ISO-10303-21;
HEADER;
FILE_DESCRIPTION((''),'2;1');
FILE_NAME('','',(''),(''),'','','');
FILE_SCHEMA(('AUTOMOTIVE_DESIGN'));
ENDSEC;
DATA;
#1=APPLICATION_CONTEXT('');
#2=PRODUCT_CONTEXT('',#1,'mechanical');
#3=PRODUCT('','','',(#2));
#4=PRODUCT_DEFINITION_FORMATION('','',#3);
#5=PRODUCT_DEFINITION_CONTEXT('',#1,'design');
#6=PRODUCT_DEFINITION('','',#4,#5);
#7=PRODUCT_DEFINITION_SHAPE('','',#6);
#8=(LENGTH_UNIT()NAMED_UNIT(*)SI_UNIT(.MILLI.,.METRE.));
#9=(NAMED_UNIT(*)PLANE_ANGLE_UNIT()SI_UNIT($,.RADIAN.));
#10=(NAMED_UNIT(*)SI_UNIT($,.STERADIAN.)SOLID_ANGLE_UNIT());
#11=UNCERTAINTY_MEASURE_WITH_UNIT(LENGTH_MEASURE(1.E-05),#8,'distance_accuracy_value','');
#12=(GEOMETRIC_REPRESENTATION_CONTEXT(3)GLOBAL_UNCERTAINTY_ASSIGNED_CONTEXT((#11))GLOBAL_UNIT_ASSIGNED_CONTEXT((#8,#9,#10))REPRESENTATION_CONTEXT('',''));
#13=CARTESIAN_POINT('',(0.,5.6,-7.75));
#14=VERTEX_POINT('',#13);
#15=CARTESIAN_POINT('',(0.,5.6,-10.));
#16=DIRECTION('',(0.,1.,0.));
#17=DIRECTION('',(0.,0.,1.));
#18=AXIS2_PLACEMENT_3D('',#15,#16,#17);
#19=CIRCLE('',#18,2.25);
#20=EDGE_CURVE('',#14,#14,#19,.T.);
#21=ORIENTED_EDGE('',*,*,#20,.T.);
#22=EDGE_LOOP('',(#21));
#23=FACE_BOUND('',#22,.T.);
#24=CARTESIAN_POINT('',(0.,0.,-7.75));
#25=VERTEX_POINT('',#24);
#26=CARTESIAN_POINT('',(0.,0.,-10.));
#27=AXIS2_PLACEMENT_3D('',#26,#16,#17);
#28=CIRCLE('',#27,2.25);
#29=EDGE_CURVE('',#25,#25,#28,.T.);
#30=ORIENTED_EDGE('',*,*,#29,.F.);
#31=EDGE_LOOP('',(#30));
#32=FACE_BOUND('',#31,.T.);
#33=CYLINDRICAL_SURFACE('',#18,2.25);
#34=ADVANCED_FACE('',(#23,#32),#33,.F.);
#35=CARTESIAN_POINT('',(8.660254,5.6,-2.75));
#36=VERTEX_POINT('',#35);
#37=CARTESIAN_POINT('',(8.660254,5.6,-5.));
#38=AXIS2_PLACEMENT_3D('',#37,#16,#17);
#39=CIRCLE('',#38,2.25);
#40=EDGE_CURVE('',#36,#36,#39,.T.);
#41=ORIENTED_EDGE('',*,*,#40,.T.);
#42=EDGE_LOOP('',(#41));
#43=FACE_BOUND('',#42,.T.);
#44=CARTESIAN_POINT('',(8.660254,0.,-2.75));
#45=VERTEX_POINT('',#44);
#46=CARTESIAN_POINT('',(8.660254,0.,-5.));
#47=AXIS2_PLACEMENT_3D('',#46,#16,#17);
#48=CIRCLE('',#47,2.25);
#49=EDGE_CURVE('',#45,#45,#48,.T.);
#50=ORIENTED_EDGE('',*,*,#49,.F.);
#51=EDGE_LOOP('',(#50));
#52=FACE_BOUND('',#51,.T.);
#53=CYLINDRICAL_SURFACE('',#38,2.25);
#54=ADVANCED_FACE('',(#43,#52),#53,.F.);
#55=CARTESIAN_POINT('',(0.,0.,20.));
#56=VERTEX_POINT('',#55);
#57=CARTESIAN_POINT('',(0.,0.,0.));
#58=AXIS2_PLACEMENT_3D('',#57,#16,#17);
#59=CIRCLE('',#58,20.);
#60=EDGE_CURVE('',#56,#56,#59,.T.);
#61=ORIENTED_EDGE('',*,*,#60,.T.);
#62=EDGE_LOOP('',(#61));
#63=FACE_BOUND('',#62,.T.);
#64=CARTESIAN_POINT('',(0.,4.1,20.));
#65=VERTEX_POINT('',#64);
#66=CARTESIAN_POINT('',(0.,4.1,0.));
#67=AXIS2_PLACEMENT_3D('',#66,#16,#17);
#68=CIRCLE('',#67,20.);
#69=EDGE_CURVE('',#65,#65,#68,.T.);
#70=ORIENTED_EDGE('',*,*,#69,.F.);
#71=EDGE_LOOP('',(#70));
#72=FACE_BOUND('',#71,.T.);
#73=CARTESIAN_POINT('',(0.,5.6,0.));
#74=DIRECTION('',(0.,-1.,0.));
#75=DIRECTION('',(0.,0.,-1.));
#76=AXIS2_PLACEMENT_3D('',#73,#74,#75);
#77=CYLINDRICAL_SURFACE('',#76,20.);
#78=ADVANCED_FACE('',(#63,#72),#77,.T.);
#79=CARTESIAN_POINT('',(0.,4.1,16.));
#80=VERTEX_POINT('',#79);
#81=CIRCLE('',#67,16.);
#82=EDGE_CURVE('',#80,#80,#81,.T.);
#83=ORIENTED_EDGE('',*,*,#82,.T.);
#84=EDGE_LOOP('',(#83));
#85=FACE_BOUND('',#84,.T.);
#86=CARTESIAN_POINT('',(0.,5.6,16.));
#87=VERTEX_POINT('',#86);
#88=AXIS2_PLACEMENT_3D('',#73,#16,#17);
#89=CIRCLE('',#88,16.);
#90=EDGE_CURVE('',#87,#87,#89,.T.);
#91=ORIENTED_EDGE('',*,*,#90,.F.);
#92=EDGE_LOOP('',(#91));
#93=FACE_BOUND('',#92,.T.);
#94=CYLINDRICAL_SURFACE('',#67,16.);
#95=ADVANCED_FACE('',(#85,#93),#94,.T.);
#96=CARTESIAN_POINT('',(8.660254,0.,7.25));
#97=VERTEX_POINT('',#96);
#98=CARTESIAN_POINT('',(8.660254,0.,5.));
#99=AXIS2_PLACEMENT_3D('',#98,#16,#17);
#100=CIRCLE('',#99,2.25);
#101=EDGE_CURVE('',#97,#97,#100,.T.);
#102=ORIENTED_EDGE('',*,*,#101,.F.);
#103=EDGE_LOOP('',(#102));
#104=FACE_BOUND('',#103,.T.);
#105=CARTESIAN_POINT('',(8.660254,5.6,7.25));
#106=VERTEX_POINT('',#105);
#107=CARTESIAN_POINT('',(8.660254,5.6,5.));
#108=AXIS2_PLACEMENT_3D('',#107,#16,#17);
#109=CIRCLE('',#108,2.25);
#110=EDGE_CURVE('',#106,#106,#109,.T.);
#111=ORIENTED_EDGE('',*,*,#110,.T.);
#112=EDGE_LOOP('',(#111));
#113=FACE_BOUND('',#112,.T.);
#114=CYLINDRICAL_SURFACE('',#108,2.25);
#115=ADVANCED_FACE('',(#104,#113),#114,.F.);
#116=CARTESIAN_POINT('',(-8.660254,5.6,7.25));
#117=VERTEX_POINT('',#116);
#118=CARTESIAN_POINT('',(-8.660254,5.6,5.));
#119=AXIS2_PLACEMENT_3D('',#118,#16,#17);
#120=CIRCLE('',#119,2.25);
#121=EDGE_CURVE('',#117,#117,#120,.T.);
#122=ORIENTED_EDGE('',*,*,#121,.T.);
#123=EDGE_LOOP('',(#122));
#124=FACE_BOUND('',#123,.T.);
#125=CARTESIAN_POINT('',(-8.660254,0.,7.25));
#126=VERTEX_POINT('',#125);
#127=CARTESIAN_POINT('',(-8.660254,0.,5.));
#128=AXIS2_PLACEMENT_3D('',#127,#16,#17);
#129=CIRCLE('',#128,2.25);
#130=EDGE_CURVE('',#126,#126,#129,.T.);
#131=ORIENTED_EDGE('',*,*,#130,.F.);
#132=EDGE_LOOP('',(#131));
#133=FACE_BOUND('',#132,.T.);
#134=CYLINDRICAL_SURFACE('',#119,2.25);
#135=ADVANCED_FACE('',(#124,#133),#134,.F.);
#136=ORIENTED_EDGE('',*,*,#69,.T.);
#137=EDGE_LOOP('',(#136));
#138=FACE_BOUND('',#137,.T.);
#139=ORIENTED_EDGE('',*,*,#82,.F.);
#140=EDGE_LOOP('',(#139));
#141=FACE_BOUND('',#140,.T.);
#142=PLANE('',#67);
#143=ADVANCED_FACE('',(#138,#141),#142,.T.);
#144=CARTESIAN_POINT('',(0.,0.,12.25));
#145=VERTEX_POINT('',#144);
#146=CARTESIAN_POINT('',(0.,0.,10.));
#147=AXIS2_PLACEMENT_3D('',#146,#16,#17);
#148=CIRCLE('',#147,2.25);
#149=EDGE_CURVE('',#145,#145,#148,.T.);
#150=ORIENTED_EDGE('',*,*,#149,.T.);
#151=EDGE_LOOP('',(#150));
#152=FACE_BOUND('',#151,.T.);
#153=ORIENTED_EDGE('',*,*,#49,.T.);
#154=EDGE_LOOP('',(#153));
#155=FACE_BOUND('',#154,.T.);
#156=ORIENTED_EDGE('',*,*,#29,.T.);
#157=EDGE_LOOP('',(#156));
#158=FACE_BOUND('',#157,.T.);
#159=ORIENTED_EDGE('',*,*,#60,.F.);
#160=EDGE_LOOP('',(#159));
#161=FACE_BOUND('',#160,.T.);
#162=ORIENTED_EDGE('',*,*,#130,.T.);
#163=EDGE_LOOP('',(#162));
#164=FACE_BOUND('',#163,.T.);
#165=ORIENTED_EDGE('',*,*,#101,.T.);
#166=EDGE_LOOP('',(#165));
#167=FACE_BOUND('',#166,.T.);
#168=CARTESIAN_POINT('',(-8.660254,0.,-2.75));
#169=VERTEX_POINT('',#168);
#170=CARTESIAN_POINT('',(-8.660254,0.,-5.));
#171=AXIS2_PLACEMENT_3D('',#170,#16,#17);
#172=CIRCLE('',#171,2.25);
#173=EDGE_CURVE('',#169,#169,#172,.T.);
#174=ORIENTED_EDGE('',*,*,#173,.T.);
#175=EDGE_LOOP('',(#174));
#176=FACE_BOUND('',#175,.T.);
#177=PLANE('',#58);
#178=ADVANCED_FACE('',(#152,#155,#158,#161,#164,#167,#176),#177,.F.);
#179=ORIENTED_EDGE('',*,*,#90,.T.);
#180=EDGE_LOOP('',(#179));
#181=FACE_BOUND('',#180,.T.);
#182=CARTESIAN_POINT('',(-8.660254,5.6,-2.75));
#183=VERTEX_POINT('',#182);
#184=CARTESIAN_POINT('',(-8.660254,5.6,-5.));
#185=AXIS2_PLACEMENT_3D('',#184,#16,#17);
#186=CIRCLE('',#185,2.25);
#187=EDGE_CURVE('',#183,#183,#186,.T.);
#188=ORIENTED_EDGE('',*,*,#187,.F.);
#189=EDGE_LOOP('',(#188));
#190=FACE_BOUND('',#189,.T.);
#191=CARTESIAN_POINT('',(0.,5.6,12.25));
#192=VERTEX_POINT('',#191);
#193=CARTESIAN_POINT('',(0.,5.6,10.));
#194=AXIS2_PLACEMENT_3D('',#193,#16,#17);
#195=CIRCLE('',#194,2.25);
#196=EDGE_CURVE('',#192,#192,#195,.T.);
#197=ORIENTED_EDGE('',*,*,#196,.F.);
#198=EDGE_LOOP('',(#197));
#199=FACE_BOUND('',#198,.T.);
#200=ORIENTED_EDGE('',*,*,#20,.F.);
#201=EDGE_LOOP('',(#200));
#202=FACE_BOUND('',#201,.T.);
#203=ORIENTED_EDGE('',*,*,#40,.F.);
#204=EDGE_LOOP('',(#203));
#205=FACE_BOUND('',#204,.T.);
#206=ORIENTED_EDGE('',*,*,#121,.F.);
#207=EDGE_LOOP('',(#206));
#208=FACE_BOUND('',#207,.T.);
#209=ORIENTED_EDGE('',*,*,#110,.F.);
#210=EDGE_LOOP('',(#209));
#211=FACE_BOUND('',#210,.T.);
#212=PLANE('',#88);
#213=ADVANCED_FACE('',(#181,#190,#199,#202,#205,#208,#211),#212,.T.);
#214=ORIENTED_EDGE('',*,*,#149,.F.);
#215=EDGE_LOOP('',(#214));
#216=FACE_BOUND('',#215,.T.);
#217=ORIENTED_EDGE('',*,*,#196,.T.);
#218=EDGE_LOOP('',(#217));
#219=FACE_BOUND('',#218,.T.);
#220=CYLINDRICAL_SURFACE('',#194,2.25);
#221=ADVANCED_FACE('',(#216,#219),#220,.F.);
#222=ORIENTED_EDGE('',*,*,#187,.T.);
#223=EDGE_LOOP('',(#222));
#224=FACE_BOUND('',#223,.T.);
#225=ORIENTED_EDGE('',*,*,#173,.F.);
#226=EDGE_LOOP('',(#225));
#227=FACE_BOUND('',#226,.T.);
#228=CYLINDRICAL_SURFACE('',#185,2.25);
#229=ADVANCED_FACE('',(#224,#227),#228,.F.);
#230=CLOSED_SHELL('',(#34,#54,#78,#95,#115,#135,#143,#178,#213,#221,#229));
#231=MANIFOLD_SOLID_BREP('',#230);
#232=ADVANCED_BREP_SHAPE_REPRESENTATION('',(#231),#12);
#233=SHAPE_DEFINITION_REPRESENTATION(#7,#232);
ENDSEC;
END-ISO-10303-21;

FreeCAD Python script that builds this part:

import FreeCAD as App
import Part
import Sketcher

V = App.Vector

doc = App.newDocument("Part")
body = doc.addObject("PartDesign::Body", "Body")

# Sketch on XZ plane
sketch1 = body.newObject("Sketcher::SketchObject", "Sketch")
sketch1.AttachmentSupport = (doc.getObject("XZ_Plane"), [""])
sketch1.MapMode = "FlatFace"
sketch1.addGeometry(Part.Circle(V(0, 0, 0), V(0, 0, 1), 20), False)
sketch1.addConstraint([
    Sketcher.Constraint("Coincident", 0, 3, -1, 1),
    Sketcher.Constraint("Diameter", 0, 40.0),
])
pad1 = body.newObject("PartDesign::Pad", "Pad")
pad1.Profile = sketch1
pad1.Length = 5.6
pad1.Reversed = True

# Sketch on XZ plane
sketch2 = body.newObject("Sketcher::SketchObject", "Sketch001")
sketch2.AttachmentSupport = (doc.getObject("XZ_Plane"), [""])
sketch2.MapMode = "FlatFace"
sketch2.AttachmentOffset = App.Placement(V(0, 0, -4.1), App.Rotation())
sketch2.addGeometry([
    Part.Circle(V(0, 0, 0), V(0, 0, 1), 20),
    Part.Circle(V(0, 0, 0), V(0, 0, 1), 16),
], False)
sketch2.addConstraint([
    Sketcher.Constraint("Coincident", 0, 3, -1, 1),
    Sketcher.Constraint("Coincident", 1, 3, -1, 1),
    Sketcher.Constraint("Diameter", 0, 40.0),
    Sketcher.Constraint("Diameter", 1, 32.0),
])
pocket1 = body.newObject("PartDesign::Pocket", "Pocket")
pocket1.Profile = sketch2
pocket1.Length = 1.5

# Sketch on XZ plane
sketch3 = body.newObject("Sketcher::SketchObject", "Sketch002")
sketch3.AttachmentSupport = (doc.getObject("XZ_Plane"), [""])
sketch3.MapMode = "FlatFace"
sketch3.AttachmentOffset = App.Placement(V(0, 0, -5.6), App.Rotation())
sketch3.addGeometry([
    Part.Circle(V(0, -10, 0), V(0, 0, 1), 2.2),  # 0
    Part.Circle(V(8.7, -5, 0), V(0, 0, 1), 2.2),  # 1
    Part.Circle(V(8.7, 5, 0), V(0, 0, 1), 2.2),  # 2
    Part.Circle(V(0, 10, 0), V(0, 0, 1), 2.2),  # 3
    Part.Circle(V(-8.7, 5, 0), V(0, 0, 1), 2.2),  # 4
    Part.Circle(V(-8.7, -5, 0), V(0, 0, 1), 2.2),  # 5
], False)
sketch3.addConstraint([
    Sketcher.Constraint("Equal", 0, 1),
    Sketcher.Constraint("Equal", 1, 2),
    Sketcher.Constraint("Equal", 2, 3),
    Sketcher.Constraint("Equal", 3, 4),
    Sketcher.Constraint("Equal", 4, 5),
    Sketcher.Constraint("Symmetric", 0, 3, 3, 3, -1, 1),
    Sketcher.Constraint("Symmetric", 1, 3, 4, 3, -1, 1),
    Sketcher.Constraint("Symmetric", 2, 3, 5, 3, -1, 1),
    Sketcher.Constraint("Symmetric", 2, 3, 4, 3, -2),
    Sketcher.Constraint("PointOnObject", 0, 3, -2),
    Sketcher.Constraint("Diameter", 0, 4.5),
    Sketcher.Constraint("DistanceY", 0, 3, -1, 1, 10.0),
    Sketcher.Constraint("DistanceY", 1, 3, -1, 1, 5.0),
    Sketcher.Constraint("DistanceX", 4, 3, 2, 3, 17.320508),
])
doc.recompute()
hole = body.newObject("PartDesign::Hole", "Hole")
hole.Profile = sketch3
hole.ThreadType = "None"
hole.Diameter = 4.5
hole.DepthType = "ThroughAll"
hole.Reversed = True

doc.recompute()
